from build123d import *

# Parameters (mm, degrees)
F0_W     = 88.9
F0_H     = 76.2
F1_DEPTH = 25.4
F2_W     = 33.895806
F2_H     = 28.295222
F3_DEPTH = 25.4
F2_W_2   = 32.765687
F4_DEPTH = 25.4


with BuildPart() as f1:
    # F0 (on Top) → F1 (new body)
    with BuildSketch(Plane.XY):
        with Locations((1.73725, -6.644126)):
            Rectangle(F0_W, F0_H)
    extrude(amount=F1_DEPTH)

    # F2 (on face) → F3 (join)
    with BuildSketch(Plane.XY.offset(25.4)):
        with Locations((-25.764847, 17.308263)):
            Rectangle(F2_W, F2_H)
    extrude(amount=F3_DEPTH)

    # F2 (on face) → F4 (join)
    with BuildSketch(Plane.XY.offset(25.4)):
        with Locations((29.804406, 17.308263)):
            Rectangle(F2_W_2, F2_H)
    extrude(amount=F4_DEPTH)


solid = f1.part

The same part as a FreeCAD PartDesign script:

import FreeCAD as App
import Part
import Sketcher
from FreeCAD import Vector
Q = App.Units.Quantity

doc = App.newDocument("Part")
body = doc.addObject("PartDesign::Body", "Body")

sketch1 = body.newObject("Sketcher::SketchObject", "Sketch")
sketch1.AttachmentSupport = (doc.getObject("XY_Plane"), [""])
sketch1.MapMode = "FlatFace"
sketch1.addGeometry([
    Part.LineSegment(Vector(-43, 31, 0), Vector(-43, -45, 0)),
    Part.LineSegment(Vector(-43, -45, 0), Vector(46, -45, 0)),
    Part.LineSegment(Vector(46, -45, 0), Vector(46, 31, 0)),
    Part.LineSegment(Vector(46, 31, 0), Vector(-43, 31, 0)),
], False)
sketch1.addConstraint([
    Sketcher.Constraint("Coincident", 0, 2, 1, 1),
    Sketcher.Constraint("Coincident", 1, 2, 2, 1),
    Sketcher.Constraint("Coincident", 2, 2, 3, 1),
    Sketcher.Constraint("Coincident", 3, 2, 0, 1),
    Sketcher.Constraint("Vertical", 0),
    Sketcher.Constraint("Horizontal", 1),
    Sketcher.Constraint("Vertical", 2),
    Sketcher.Constraint("Horizontal", 3),
    Sketcher.Constraint("DistanceY", 0, 2, 0, 1, Q("3 in")),
    Sketcher.Constraint("DistanceX", 1, 1, 1, 2, Q("3.5 in")),
    Sketcher.Constraint("DistanceX", 0, 2, -1, 1, 42.71275),
    Sketcher.Constraint("DistanceY", 0, 2, -1, 1, 44.744126),
])
pad1 = body.newObject("PartDesign::Pad", "Pad")
pad1.Profile = sketch1
pad1.Length = Q("1 in")

sketch2 = body.newObject("Sketcher::SketchObject", "Sketch001")
sketch2.AttachmentSupport = (doc.getObject("XY_Plane"), [""])
sketch2.MapMode = "FlatFace"
sketch2.AttachmentOffset = App.Placement(Vector(0, 0, 1 * 25.4), App.Rotation())
sketch2.addGeometry([
    Part.LineSegment(Vector(-43, 31, 0), Vector(-43, 3, 0)),
    Part.LineSegment(Vector(-43, 3, 0), Vector(-9, 3, 0)),
    Part.LineSegment(Vector(-9, 3, 0), Vector(-9, 31, 0)),
    Part.LineSegment(Vector(-9, 31, 0), Vector(-43, 31, 0)),
], False)
sketch2.addConstraint([
    Sketcher.Constraint("Coincident", 0, 2, 1, 1),
    Sketcher.Constraint("Coincident", 1, 2, 2, 1),
    Sketcher.Constraint("Coincident", 2, 2, 3, 1),
    Sketcher.Constraint("Coincident", 3, 2, 0, 1),
    Sketcher.Constraint("Vertical", 0),
    Sketcher.Constraint("Horizontal", 1),
    Sketcher.Constraint("Vertical", 2),
    Sketcher.Constraint("Horizontal", 3),
    Sketcher.Constraint("DistanceX", 1, 1, 1, 2, 33.895806),
    Sketcher.Constraint("DistanceY", 0, 2, 0, 1, 28.295222),
    Sketcher.Constraint("DistanceX", 0, 2, -1, 1, 42.71275),
    Sketcher.Constraint("DistanceY", -1, 1, 0, 2, 3.160652),
])
pad2 = body.newObject("PartDesign::Pad", "Pad001")
pad2.Profile = sketch2
pad2.Length = Q("1 in")

sketch3 = body.newObject("Sketcher::SketchObject", "Sketch002")
sketch3.AttachmentSupport = (doc.getObject("XY_Plane"), [""])
sketch3.MapMode = "FlatFace"
sketch3.AttachmentOffset = App.Placement(Vector(0, 0, 1 * 25.4), App.Rotation())
sketch3.addGeometry([
    Part.LineSegment(Vector(13, 31, 0), Vector(13, 3, 0)),
    Part.LineSegment(Vector(13, 3, 0), Vector(46, 3, 0)),
    Part.LineSegment(Vector(46, 3, 0), Vector(46, 31, 0)),
    Part.LineSegment(Vector(46, 31, 0), Vector(13, 31, 0)),
], False)
sketch3.addConstraint([
    Sketcher.Constraint("Coincident", 0, 2, 1, 1),
    Sketcher.Constraint("Coincident", 1, 2, 2, 1),
    Sketcher.Constraint("Coincident", 2, 2, 3, 1),
    Sketcher.Constraint("Coincident", 3, 2, 0, 1),
    Sketcher.Constraint("Vertical", 0),
    Sketcher.Constraint("Horizontal", 1),
    Sketcher.Constraint("Vertical", 2),
    Sketcher.Constraint("Horizontal", 3),
    Sketcher.Constraint("DistanceX", 1, 1, 1, 2, 32.765687),
    Sketcher.Constraint("DistanceY", 0, 2, 0, 1, 28.295222),
    Sketcher.Constraint("DistanceY", -1, 1, 0, 2, 3.160652),
    Sketcher.Constraint("DistanceX", -1, 1, 1, 2, 46.18725),
])
pad3 = body.newObject("PartDesign::Pad", "Pad002")
pad3.Profile = sketch3
pad3.Length = Q("1 in")

doc.recompute()
